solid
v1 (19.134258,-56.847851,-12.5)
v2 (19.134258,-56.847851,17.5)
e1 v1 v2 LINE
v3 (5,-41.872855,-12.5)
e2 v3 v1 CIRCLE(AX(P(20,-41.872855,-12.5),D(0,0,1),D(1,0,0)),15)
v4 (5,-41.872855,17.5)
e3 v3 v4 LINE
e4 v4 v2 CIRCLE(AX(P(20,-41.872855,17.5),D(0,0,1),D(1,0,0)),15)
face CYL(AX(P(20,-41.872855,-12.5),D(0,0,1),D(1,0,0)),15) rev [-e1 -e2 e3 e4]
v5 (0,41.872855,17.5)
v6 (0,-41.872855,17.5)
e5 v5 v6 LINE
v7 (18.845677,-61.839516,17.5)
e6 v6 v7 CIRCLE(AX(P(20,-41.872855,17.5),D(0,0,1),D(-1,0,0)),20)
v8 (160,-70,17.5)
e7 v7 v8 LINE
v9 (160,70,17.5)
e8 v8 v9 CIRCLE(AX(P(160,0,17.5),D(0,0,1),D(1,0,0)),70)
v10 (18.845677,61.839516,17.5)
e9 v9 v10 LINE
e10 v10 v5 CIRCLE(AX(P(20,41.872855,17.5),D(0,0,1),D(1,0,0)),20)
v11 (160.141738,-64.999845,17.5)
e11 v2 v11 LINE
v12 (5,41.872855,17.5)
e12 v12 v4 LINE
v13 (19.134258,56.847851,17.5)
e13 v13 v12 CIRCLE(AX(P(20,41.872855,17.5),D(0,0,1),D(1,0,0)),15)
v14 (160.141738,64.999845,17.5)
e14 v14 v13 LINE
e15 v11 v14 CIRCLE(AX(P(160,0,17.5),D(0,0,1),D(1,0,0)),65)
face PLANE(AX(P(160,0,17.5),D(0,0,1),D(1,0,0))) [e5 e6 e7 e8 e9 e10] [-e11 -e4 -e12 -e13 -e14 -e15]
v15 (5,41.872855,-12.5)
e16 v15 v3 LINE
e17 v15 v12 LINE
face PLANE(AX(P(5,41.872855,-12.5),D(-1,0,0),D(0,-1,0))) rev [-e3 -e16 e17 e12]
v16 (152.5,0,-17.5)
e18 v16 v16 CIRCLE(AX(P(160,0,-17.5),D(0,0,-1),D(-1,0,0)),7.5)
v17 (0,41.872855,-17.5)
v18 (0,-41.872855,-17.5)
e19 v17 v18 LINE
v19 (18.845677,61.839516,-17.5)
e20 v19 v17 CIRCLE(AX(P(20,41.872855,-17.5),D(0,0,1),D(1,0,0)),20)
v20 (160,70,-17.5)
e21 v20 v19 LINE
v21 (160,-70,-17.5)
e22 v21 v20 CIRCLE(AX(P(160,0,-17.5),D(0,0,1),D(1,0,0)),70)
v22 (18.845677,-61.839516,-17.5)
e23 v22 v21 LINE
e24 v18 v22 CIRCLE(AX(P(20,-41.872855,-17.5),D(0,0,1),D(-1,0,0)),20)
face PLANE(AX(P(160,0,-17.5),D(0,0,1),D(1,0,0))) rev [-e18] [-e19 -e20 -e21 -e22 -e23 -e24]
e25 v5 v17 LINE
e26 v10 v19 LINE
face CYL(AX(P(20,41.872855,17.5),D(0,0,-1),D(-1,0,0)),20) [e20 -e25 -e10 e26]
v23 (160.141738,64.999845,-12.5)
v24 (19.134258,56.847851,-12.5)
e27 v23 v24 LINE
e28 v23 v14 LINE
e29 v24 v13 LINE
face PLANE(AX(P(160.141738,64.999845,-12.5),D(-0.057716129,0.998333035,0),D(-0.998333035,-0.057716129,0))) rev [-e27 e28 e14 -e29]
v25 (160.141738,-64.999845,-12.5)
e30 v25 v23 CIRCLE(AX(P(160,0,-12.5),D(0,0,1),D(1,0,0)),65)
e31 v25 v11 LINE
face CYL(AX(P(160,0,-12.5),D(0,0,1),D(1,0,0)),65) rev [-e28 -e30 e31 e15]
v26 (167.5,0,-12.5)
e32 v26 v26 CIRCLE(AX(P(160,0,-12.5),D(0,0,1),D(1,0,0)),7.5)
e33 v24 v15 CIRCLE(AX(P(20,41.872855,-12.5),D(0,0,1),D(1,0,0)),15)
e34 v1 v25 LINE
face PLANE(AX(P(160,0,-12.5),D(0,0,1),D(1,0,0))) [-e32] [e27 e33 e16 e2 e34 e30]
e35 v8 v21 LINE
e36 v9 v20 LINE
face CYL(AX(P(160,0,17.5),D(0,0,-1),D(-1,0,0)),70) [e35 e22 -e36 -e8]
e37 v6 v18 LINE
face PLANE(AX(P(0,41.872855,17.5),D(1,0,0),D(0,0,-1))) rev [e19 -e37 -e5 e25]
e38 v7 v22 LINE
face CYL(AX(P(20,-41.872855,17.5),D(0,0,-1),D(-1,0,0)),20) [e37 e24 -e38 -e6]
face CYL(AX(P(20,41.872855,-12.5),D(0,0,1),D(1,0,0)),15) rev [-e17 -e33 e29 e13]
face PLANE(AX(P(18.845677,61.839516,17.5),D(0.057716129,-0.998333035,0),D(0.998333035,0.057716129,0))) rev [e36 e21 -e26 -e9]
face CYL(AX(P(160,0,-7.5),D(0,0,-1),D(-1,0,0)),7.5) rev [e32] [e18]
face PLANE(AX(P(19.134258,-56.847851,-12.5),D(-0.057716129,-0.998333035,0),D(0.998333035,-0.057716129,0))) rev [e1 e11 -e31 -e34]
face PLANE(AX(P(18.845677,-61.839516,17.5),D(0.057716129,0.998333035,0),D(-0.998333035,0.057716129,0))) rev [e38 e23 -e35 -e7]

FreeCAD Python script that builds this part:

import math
import FreeCAD as App
import Part
import Sketcher

V = App.Vector
Q = App.Units.Quantity

doc = App.newDocument("Part")
body = doc.addObject("PartDesign::Body", "Body")

# Sketch on XY plane
sketch1 = body.newObject("Sketcher::SketchObject", "Sketch")
sketch1.AttachmentSupport = (doc.getObject("XY_Plane"), [""])
sketch1.MapMode = "FlatFace"
sketch1.addGeometry(Part.LineSegment(V(0, 42, 0), V(0, -42, 0)), False)
sketch1.addGeometry(Part.ArcOfCircle(Part.Circle(V(20, -42, 0), V(0, 0, 1), 20), math.radians(180), math.radians(267)), False)
sketch1.addGeometry(Part.LineSegment(V(19, -62, 0), V(160, -70, 0)), False)
sketch1.addGeometry(Part.ArcOfCircle(Part.Circle(V(160, 0, 0), V(0, 0, 1), 70), math.radians(-90), math.radians(90)), False)
sketch1.addGeometry(Part.LineSegment(V(160, 70, 0), V(19, 62, 0)), False)
sketch1.addGeometry(Part.ArcOfCircle(Part.Circle(V(20, 42, 0), V(0, 0, 1), 20), math.radians(93), math.radians(180)), False)
sketch1.addConstraint(Sketcher.Constraint("Tangent", 0, 2, 1, 1))
sketch1.addConstraint(Sketcher.Constraint("Tangent", 1, 2, 2, 1))
sketch1.addConstraint(Sketcher.Constraint("Coincident", 2, 2, 3, 1))
sketch1.addConstraint(Sketcher.Constraint("Coincident", 3, 2, 4, 1))
sketch1.addConstraint(Sketcher.Constraint("Tangent", 4, 2, 5, 1))
sketch1.addConstraint(Sketcher.Constraint("Tangent", 5, 2, 0, 1))
sketch1.addConstraint(Sketcher.Constraint("Vertical", 0))
sketch1.addConstraint(Sketcher.Constraint("Equal", 1, 5))
sketch1.addConstraint(Sketcher.Constraint("Symmetric", 0, 2, 5, 2, -1, 1))
sketch1.addConstraint(Sketcher.Constraint("Symmetric", 2, 2, 3, 2, -1))
sketch1.addConstraint(Sketcher.Constraint("Vertical", 3, 3, 2, 2))
sketch1.addConstraint(Sketcher.Constraint("Radius", 1, Q("20 mm")))
sketch1.addConstraint(Sketcher.Constraint("Radius", 3, Q("70 mm")))
sketch1.addConstraint(Sketcher.Constraint("DistanceX", -1, 1, 3, 3, Q("160 mm")))
sketch1.addConstraint(Sketcher.Constraint("DistanceY", 0, 2, 0, 1, Q("83.74571 mm")))
pad1 = body.newObject("PartDesign::Pad", "Pad")
pad1.Profile = sketch1
pad1.Length = 35
pad1.Midplane = True

# Sketch on XY plane
sketch2 = body.newObject("Sketcher::SketchObject", "Sketch001")
sketch2.AttachmentSupport = (doc.getObject("XY_Plane"), [""])
sketch2.MapMode = "FlatFace"
sketch2.AttachmentOffset = App.Placement(V(0, 0, 17.5), App.Rotation())
sketch2.addGeometry(Part.LineSegment(V(160, 65, 0), V(19, 57, 0)), False)
sketch2.addGeometry(Part.ArcOfCircle(Part.Circle(V(20, 42, 0), V(0, 0, 1), 15), math.radians(93), math.radians(180)), False)
sketch2.addGeometry(Part.LineSegment(V(5, 42, 0), V(5, -42, 0)), False)
sketch2.addGeometry(Part.ArcOfCircle(Part.Circle(V(20, -42, 0), V(0, 0, 1), 15), math.radians(180), math.radians(267)), False)
sketch2.addGeometry(Part.LineSegment(V(19, -57, 0), V(160, -65, 0)), False)
sketch2.addGeometry(Part.ArcOfCircle(Part.Circle(V(160, 0, 0), V(0, 0, 1), 65), math.radians(-90), math.radians(90)), False)
sketch2.addConstraint(Sketcher.Constraint("Tangent", 0, 2, 1, 1))
sketch2.addConstraint(Sketcher.Constraint("Tangent", 1, 2, 2, 1))
sketch2.addConstraint(Sketcher.Constraint("Tangent", 2, 2, 3, 1))
sketch2.addConstraint(Sketcher.Constraint("Tangent", 3, 2, 4, 1))
sketch2.addConstraint(Sketcher.Constraint("Coincident", 4, 2, 5, 1))
sketch2.addConstraint(Sketcher.Constraint("Coincident", 5, 2, 0, 1))
sketch2.addConstraint(Sketcher.Constraint("Vertical", 2))
sketch2.addConstraint(Sketcher.Constraint("Equal", 1, 3))
sketch2.addConstraint(Sketcher.Constraint("Symmetric", 0, 2, 3, 2, -1))
sketch2.addConstraint(Sketcher.Constraint("PointOnObject", 5, 3, -1))
sketch2.addConstraint(Sketcher.Constraint("Radius", 1, Q("15 mm")))
sketch2.addConstraint(Sketcher.Constraint("Radius", 5, Q("65 mm")))
sketch2.addConstraint(Sketcher.Constraint("DistanceX", -1, 1, 1, 3, Q("20 mm")))
sketch2.addConstraint(Sketcher.Constraint("DistanceX", -1, 1, 5, 3, Q("160 mm")))
sketch2.addConstraint(Sketcher.Constraint("DistanceY", 2, 2, 2, 1, Q("83.74571 mm")))
sketch2.addConstraint(Sketcher.Constraint("DistanceX", -1, 1, 0, 2, Q("19.134258 mm")))
pocket1 = body.newObject("PartDesign::Pocket", "Pocket")
pocket1.Profile = sketch2
pocket1.Length = 30

# Sketch on XY plane
sketch3 = body.newObject("Sketcher::SketchObject", "Sketch002")
sketch3.AttachmentSupport = (doc.getObject("XY_Plane"), [""])
sketch3.MapMode = "FlatFace"
sketch3.AttachmentOffset = App.Placement(V(0, 0, -17.5), App.Rotation())
sketch3.addGeometry(Part.Circle(V(160, 0, 0), V(0, 0, 1), 8), False)
sketch3.addConstraint(Sketcher.Constraint("PointOnObject", 0, 3, -1))
sketch3.addConstraint(Sketcher.Constraint("Diameter", 0, Q("15 mm")))
sketch3.addConstraint(Sketcher.Constraint("DistanceX", -1, 1, 0, 3, Q("160 mm")))
pocket2 = body.newObject("PartDesign::Pocket", "Pocket001")
pocket2.Profile = sketch3
pocket2.Length = 10
pocket2.Reversed = True

doc.recompute()
